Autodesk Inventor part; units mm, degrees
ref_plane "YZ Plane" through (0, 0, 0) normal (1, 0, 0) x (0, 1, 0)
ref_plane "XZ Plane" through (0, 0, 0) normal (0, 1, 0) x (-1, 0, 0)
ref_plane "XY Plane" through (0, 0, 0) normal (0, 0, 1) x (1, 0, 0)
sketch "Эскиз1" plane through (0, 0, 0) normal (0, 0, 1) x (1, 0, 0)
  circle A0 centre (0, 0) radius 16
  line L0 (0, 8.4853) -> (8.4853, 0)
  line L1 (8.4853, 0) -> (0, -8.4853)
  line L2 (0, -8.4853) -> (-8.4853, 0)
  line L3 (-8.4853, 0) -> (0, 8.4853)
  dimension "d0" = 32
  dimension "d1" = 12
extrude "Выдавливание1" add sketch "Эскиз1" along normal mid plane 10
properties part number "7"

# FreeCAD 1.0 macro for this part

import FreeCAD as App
import Part
import Sketcher


def add_polygon(sketch, points):
    """Adds a closed chain of lines whose ends are joined by coincident constraints."""
    first, n = sketch.GeometryCount, len(points)
    for a, b in zip(points, points[1:] + points[:1]):
        sketch.addGeometry(Part.LineSegment(App.Vector(*a, 0), App.Vector(*b, 0)), False)
    for i in range(n):
        sketch.addConstraint(Sketcher.Constraint("Coincident", first + i, 2, first + (i + 1) % n, 1))

doc = App.newDocument("Part")
body = doc.addObject("PartDesign::Body", "Body")

# Sketch on XY plane
sketch1 = body.newObject("Sketcher::SketchObject", "Sketch")
sketch1.AttachmentSupport = (doc.getObject("XY_Plane"), [""])
sketch1.MapMode = "FlatFace"
sketch1.addGeometry(Part.Circle(App.Vector(0, 0, 0), App.Vector(0, 0, 1), 16), False)  # 0
add_polygon(sketch1, [(-8, 0), (0, 8), (8, 0), (0, -8)])  # lines 1-4
sketch1.addConstraint(Sketcher.Constraint("Coincident", 0, 3, -1, 1))
sketch1.addConstraint(Sketcher.Constraint("Symmetric", 1, 2, 3, 2, -1, 1))
sketch1.addConstraint(Sketcher.Constraint("Symmetric", 2, 2, 4, 2, -1, 1))
sketch1.addConstraint(Sketcher.Constraint("PointOnObject", 1, 2, -2))
sketch1.addConstraint(Sketcher.Constraint("PointOnObject", 2, 2, -1))
sketch1.addConstraint(Sketcher.Constraint("Perpendicular", 1, 2))
sketch1.addConstraint(Sketcher.Constraint("Diameter", 0, 32.0))
sketch1.addConstraint(Sketcher.Constraint("Distance", 1, 12.0))
pad1 = body.newObject("PartDesign::Pad", "Pad")
pad1.Profile = sketch1
pad1.Length = 10
pad1.Midplane = True

doc.recompute()
